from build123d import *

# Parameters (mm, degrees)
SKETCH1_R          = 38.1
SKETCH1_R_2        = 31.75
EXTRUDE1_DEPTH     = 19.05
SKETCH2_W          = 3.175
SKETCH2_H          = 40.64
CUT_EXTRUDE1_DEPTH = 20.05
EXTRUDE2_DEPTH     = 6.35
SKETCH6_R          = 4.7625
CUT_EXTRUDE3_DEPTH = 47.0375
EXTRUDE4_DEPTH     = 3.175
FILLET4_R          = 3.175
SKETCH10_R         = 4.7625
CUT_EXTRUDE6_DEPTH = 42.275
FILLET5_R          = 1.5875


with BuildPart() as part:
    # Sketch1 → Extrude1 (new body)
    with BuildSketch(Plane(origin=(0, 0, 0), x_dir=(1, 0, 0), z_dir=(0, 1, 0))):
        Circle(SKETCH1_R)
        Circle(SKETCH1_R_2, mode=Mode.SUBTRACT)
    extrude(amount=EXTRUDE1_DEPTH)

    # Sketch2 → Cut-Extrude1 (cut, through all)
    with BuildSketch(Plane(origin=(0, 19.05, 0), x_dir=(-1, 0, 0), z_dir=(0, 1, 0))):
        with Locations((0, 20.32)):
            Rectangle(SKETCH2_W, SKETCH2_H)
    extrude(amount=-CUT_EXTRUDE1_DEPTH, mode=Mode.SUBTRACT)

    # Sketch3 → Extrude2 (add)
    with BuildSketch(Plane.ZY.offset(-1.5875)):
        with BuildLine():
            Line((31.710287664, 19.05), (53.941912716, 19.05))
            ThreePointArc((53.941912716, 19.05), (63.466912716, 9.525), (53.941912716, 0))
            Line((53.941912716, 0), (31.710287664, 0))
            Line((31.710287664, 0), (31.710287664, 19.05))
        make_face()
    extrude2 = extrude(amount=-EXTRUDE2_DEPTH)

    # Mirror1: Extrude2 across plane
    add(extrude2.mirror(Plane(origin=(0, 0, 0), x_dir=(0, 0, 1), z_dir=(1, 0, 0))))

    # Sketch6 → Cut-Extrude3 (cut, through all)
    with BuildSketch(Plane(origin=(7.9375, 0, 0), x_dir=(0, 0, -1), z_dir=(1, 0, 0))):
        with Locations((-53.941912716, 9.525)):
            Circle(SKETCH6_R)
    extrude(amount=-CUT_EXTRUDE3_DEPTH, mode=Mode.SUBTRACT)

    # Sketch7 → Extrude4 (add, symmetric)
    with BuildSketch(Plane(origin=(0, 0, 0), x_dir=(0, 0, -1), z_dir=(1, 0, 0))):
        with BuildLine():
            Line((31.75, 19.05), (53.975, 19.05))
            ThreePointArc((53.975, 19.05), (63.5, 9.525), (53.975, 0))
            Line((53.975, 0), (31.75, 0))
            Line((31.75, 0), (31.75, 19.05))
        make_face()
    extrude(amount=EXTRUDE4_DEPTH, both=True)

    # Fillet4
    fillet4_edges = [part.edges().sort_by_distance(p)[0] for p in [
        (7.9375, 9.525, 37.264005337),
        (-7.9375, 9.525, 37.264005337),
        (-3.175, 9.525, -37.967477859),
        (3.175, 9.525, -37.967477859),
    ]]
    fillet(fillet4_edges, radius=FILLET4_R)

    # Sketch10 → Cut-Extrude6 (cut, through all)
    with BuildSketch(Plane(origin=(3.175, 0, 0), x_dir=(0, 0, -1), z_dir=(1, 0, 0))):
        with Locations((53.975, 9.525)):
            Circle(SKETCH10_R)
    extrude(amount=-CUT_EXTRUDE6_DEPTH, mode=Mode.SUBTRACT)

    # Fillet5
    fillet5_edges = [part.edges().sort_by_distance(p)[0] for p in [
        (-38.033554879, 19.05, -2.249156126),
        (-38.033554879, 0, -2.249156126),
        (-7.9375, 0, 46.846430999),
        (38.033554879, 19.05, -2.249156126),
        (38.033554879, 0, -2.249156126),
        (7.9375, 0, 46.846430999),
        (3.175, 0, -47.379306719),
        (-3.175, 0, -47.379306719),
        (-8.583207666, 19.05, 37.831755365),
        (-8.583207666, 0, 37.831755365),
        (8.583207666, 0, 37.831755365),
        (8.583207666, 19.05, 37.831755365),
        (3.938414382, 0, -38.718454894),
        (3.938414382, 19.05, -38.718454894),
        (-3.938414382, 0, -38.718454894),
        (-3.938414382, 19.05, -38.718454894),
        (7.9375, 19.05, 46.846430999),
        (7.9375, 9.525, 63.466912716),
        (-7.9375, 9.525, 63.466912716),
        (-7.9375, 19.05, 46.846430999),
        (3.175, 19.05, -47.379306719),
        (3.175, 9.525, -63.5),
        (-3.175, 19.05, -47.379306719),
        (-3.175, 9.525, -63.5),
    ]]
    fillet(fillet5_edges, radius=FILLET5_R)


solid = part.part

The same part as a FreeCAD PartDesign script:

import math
import FreeCAD as App
import Part
import Sketcher
from FreeCAD import Vector
Q = App.Units.Quantity


def edges_at(feature, points):
    """Names of the edges that pass closest to the given points."""
    edges = feature.Shape.Edges
    near = lambda p: min(range(len(edges)), key=lambda i: edges[i].distToShape(Part.Vertex(*p))[0])
    return sorted({f"Edge{near(p) + 1}" for p in points})

doc = App.newDocument("Part")
body = doc.addObject("PartDesign::Body", "Body")

# Sketch on XZ plane
sketch1 = doc.addObject("Sketcher::SketchObject", "Sketch")
body.addObject(sketch1)
sketch1.AttachmentSupport = (doc.XZ_Plane, [""])
sketch1.MapMode = "FlatFace"
sketch1.addGeometry([
    Part.Circle(Vector(0, 0, 0), Vector(0, 0, 1), 38),
    Part.Circle(Vector(0, 0, 0), Vector(0, 0, 1), 32),
], False)
sketch1.addConstraint([
    Sketcher.Constraint("Coincident", 0, 3, -1, 1),
    Sketcher.Constraint("Coincident", 1, 3, -1, 1),
    Sketcher.Constraint("Diameter", 0, Q("3 in")),
    Sketcher.Constraint("Diameter", 1, Q("2.5 in")),
])
pad1 = doc.addObject("PartDesign::Pad", "Pad")
body.addObject(pad1)
pad1.Profile = sketch1
pad1.Length = Q("0.75 in")
pad1.Reversed = True

# Sketch on XZ plane
sketch2 = doc.addObject("Sketcher::SketchObject", "Sketch001")
body.addObject(sketch2)
sketch2.AttachmentSupport = (doc.XZ_Plane, [""])
sketch2.MapMode = "FlatFace"
sketch2.AttachmentOffset = App.Placement(Vector(0, 0, -0.75 * 25.4), App.Rotation())
sketch2.addGeometry([
    Part.LineSegment(Vector(1.6, 40.6, 0), Vector(1.6, 0, 0)),
    Part.LineSegment(Vector(1.6, 0, 0), Vector(-1.6, 0, 0)),
    Part.LineSegment(Vector(-1.6, 0, 0), Vector(-1.6, 40.6, 0)),
    Part.LineSegment(Vector(-1.6, 40.6, 0), Vector(1.6, 40.6, 0)),
], False)
sketch2.addConstraint([
    Sketcher.Constraint("Coincident", 0, 2, 1, 1),
    Sketcher.Constraint("Coincident", 1, 2, 2, 1),
    Sketcher.Constraint("Coincident", 2, 2, 3, 1),
    Sketcher.Constraint("Coincident", 3, 2, 0, 1),
    Sketcher.Constraint("Vertical", 0),
    Sketcher.Constraint("Horizontal", 1),
    Sketcher.Constraint("Vertical", 2),
    Sketcher.Constraint("Horizontal", 3),
    Sketcher.Constraint("Symmetric", 0, 2, 1, 2, -1, 1),
    Sketcher.Constraint("DistanceY", 0, 2, 0, 1, Q("1.6 in")),
    Sketcher.Constraint("DistanceX", 1, 2, 1, 1, Q("0.125 in")),
])
pocket1 = doc.addObject("PartDesign::Pocket", "Pocket")
body.addObject(pocket1)
pocket1.Profile = sketch2
pocket1.Type = "ThroughAll"
pocket1.Reversed = True

# Sketch on YZ plane
sketch3 = doc.addObject("Sketcher::SketchObject", "Sketch002")
body.addObject(sketch3)
sketch3.AttachmentSupport = (doc.YZ_Plane, [""])
sketch3.MapMode = "FlatFace"
sketch3.AttachmentOffset = App.Placement(Vector(0, 0, 0.0625 * 25.4), App.Rotation())
sketch3.addGeometry([
    Part.LineSegment(Vector(19, 54, 0), Vector(19, 32, 0)),
    Part.LineSegment(Vector(19, 32, 0), Vector(0, 32, 0)),
    Part.LineSegment(Vector(0, 32, 0), Vector(0, 54, 0)),
    Part.ArcOfCircle(Part.Circle(Vector(10, 54, 0), Vector(0, 0, 1), 10), math.radians(0), math.radians(180)),
], False)
sketch3.addConstraint([
    Sketcher.Constraint("Coincident", 0, 2, 1, 1),
    Sketcher.Constraint("Coincident", 1, 2, 2, 1),
    Sketcher.Constraint("Tangent", 2, 2, 3, 2),
    Sketcher.Constraint("Tangent", 3, 1, 0, 1),
    Sketcher.Constraint("Vertical", 0),
    Sketcher.Constraint("Horizontal", 1),
    Sketcher.Constraint("Vertical", 2),
    Sketcher.Constraint("PointOnObject", 1, 2, -2),
    Sketcher.Constraint("Radius", 3, Q("0.375 in")),
    Sketcher.Constraint("DistanceY", 0, 2, 0, 1, 22.231625),
    Sketcher.Constraint("DistanceY", -1, 1, 3, 3, 53.941913),
])
pad2 = doc.addObject("PartDesign::Pad", "Pad001")
body.addObject(pad2)
pad2.Profile = sketch3
pad2.Length = Q("0.25 in")
doc.recompute()

mirrored = doc.addObject("PartDesign::Mirrored", "Mirrored")
body.addObject(mirrored)
mirrored.Originals = [pad2]
mirrored.MirrorPlane = (doc.YZ_Plane, [""])
body.Tip = mirrored

# Sketch on YZ plane
sketch4 = doc.addObject("Sketcher::SketchObject", "Sketch003")
body.addObject(sketch4)
sketch4.AttachmentSupport = (doc.YZ_Plane, [""])
sketch4.MapMode = "FlatFace"
sketch4.AttachmentOffset = App.Placement(Vector(0, 0, 0.3125 * 25.4), App.Rotation())
sketch4.addGeometry(Part.Circle(Vector(9.5, 53.9, 0), Vector(0, 0, 1), 4.8), False)
sketch4.addConstraint([
    Sketcher.Constraint("Diameter", 0, Q("0.375 in")),
    Sketcher.Constraint("DistanceX", -1, 1, 0, 3, Q("0.375 in")),
    Sketcher.Constraint("DistanceY", -1, 1, 0, 3, 53.941913),
])
pocket2 = doc.addObject("PartDesign::Pocket", "Pocket001")
body.addObject(pocket2)
pocket2.Profile = sketch4
pocket2.Type = "ThroughAll"

# Sketch on YZ plane
sketch5 = doc.addObject("Sketcher::SketchObject", "Sketch004")
body.addObject(sketch5)
sketch5.AttachmentSupport = (doc.YZ_Plane, [""])
sketch5.MapMode = "FlatFace"
sketch5.addGeometry([
    Part.LineSegment(Vector(19, -54, 0), Vector(19, -32, 0)),
    Part.LineSegment(Vector(19, -32, 0), Vector(0, -32, 0)),
    Part.LineSegment(Vector(0, -32, 0), Vector(0, -54, 0)),
    Part.ArcOfCircle(Part.Circle(Vector(10, -54, 0), Vector(0, 0, 1), 10), math.radians(180), math.radians(360)),
], False)
sketch5.addConstraint([
    Sketcher.Constraint("Coincident", 0, 2, 1, 1),
    Sketcher.Constraint("Coincident", 1, 2, 2, 1),
    Sketcher.Constraint("Tangent", 2, 2, 3, 1),
    Sketcher.Constraint("Tangent", 3, 2, 0, 1),
    Sketcher.Constraint("Vertical", 0),
    Sketcher.Constraint("Horizontal", 1),
    Sketcher.Constraint("Vertical", 2),
    Sketcher.Constraint("PointOnObject", 1, 2, -2),
    Sketcher.Constraint("Radius", 3, Q("0.375 in")),
    Sketcher.Constraint("DistanceY", 0, 1, 0, 2, Q("0.875 in")),
    Sketcher.Constraint("DistanceY", 0, 2, -1, 1, Q("1.25 in")),
])
pad3 = doc.addObject("PartDesign::Pad", "Pad002")
body.addObject(pad3)
pad3.Profile = sketch5
pad3.Length = Q("0.25 in")
pad3.Midplane = True
doc.recompute()

fillet = doc.addObject("PartDesign::Fillet", "Fillet")
body.addObject(fillet)
fillet.Base = (pad3, edges_at(pad3, [
    (7.938, 9.525, 37.264),
    (-7.938, 9.525, 37.264),
    (-3.175, 9.525, -37.967),
    (3.175, 9.525, -37.967),
]))
fillet.Radius = Q("0.125 in")

# Sketch on YZ plane
sketch6 = doc.addObject("Sketcher::SketchObject", "Sketch005")
body.addObject(sketch6)
sketch6.AttachmentSupport = (doc.YZ_Plane, [""])
sketch6.MapMode = "FlatFace"
sketch6.AttachmentOffset = App.Placement(Vector(0, 0, 0.125 * 25.4), App.Rotation())
sketch6.addGeometry(Part.Circle(Vector(9.5, -54, 0), Vector(0, 0, 1), 4.8), False)
sketch6.addConstraint([
    Sketcher.Constraint("Diameter", 0, Q("0.375 in")),
    Sketcher.Constraint("DistanceX", -1, 1, 0, 3, Q("0.375 in")),
    Sketcher.Constraint("DistanceY", 0, 3, -1, 1, Q("2.125 in")),
])
pocket3 = doc.addObject("PartDesign::Pocket", "Pocket002")
body.addObject(pocket3)
pocket3.Profile = sketch6
pocket3.Type = "ThroughAll"
doc.recompute()

fillet2 = doc.addObject("PartDesign::Fillet", "Fillet001")
body.addObject(fillet2)
fillet2.Base = (pocket3, edges_at(pocket3, [
    (-38.034, 19.05, -2.249),
    (-38.034, 0, -2.249),
    (-7.938, 0, 46.846),
    (38.034, 19.05, -2.249),
    (38.034, 0, -2.249),
    (7.938, 0, 46.846),
    (3.175, 0, -47.379),
    (-3.175, 0, -47.379),
    (-8.583, 19.05, 37.832),
    (-8.583, 0, 37.832),
    (8.583, 0, 37.832),
    (8.583, 19.05, 37.832),
    (3.938, 0, -38.718),
    (3.938, 19.05, -38.718),
    (-3.938, 0, -38.718),
    (-3.938, 19.05, -38.718),
    (7.938, 19.05, 46.846),
    (7.938, 9.525, 63.467),
    (-7.938, 9.525, 63.467),
    (-7.938, 19.05, 46.846),
    (3.175, 19.05, -47.379),
    (3.175, 9.525, -63.5),
    (-3.175, 19.05, -47.379),
    (-3.175, 9.525, -63.5),
]))
fillet2.Radius = Q("0.0625 in")

doc.recompute()
